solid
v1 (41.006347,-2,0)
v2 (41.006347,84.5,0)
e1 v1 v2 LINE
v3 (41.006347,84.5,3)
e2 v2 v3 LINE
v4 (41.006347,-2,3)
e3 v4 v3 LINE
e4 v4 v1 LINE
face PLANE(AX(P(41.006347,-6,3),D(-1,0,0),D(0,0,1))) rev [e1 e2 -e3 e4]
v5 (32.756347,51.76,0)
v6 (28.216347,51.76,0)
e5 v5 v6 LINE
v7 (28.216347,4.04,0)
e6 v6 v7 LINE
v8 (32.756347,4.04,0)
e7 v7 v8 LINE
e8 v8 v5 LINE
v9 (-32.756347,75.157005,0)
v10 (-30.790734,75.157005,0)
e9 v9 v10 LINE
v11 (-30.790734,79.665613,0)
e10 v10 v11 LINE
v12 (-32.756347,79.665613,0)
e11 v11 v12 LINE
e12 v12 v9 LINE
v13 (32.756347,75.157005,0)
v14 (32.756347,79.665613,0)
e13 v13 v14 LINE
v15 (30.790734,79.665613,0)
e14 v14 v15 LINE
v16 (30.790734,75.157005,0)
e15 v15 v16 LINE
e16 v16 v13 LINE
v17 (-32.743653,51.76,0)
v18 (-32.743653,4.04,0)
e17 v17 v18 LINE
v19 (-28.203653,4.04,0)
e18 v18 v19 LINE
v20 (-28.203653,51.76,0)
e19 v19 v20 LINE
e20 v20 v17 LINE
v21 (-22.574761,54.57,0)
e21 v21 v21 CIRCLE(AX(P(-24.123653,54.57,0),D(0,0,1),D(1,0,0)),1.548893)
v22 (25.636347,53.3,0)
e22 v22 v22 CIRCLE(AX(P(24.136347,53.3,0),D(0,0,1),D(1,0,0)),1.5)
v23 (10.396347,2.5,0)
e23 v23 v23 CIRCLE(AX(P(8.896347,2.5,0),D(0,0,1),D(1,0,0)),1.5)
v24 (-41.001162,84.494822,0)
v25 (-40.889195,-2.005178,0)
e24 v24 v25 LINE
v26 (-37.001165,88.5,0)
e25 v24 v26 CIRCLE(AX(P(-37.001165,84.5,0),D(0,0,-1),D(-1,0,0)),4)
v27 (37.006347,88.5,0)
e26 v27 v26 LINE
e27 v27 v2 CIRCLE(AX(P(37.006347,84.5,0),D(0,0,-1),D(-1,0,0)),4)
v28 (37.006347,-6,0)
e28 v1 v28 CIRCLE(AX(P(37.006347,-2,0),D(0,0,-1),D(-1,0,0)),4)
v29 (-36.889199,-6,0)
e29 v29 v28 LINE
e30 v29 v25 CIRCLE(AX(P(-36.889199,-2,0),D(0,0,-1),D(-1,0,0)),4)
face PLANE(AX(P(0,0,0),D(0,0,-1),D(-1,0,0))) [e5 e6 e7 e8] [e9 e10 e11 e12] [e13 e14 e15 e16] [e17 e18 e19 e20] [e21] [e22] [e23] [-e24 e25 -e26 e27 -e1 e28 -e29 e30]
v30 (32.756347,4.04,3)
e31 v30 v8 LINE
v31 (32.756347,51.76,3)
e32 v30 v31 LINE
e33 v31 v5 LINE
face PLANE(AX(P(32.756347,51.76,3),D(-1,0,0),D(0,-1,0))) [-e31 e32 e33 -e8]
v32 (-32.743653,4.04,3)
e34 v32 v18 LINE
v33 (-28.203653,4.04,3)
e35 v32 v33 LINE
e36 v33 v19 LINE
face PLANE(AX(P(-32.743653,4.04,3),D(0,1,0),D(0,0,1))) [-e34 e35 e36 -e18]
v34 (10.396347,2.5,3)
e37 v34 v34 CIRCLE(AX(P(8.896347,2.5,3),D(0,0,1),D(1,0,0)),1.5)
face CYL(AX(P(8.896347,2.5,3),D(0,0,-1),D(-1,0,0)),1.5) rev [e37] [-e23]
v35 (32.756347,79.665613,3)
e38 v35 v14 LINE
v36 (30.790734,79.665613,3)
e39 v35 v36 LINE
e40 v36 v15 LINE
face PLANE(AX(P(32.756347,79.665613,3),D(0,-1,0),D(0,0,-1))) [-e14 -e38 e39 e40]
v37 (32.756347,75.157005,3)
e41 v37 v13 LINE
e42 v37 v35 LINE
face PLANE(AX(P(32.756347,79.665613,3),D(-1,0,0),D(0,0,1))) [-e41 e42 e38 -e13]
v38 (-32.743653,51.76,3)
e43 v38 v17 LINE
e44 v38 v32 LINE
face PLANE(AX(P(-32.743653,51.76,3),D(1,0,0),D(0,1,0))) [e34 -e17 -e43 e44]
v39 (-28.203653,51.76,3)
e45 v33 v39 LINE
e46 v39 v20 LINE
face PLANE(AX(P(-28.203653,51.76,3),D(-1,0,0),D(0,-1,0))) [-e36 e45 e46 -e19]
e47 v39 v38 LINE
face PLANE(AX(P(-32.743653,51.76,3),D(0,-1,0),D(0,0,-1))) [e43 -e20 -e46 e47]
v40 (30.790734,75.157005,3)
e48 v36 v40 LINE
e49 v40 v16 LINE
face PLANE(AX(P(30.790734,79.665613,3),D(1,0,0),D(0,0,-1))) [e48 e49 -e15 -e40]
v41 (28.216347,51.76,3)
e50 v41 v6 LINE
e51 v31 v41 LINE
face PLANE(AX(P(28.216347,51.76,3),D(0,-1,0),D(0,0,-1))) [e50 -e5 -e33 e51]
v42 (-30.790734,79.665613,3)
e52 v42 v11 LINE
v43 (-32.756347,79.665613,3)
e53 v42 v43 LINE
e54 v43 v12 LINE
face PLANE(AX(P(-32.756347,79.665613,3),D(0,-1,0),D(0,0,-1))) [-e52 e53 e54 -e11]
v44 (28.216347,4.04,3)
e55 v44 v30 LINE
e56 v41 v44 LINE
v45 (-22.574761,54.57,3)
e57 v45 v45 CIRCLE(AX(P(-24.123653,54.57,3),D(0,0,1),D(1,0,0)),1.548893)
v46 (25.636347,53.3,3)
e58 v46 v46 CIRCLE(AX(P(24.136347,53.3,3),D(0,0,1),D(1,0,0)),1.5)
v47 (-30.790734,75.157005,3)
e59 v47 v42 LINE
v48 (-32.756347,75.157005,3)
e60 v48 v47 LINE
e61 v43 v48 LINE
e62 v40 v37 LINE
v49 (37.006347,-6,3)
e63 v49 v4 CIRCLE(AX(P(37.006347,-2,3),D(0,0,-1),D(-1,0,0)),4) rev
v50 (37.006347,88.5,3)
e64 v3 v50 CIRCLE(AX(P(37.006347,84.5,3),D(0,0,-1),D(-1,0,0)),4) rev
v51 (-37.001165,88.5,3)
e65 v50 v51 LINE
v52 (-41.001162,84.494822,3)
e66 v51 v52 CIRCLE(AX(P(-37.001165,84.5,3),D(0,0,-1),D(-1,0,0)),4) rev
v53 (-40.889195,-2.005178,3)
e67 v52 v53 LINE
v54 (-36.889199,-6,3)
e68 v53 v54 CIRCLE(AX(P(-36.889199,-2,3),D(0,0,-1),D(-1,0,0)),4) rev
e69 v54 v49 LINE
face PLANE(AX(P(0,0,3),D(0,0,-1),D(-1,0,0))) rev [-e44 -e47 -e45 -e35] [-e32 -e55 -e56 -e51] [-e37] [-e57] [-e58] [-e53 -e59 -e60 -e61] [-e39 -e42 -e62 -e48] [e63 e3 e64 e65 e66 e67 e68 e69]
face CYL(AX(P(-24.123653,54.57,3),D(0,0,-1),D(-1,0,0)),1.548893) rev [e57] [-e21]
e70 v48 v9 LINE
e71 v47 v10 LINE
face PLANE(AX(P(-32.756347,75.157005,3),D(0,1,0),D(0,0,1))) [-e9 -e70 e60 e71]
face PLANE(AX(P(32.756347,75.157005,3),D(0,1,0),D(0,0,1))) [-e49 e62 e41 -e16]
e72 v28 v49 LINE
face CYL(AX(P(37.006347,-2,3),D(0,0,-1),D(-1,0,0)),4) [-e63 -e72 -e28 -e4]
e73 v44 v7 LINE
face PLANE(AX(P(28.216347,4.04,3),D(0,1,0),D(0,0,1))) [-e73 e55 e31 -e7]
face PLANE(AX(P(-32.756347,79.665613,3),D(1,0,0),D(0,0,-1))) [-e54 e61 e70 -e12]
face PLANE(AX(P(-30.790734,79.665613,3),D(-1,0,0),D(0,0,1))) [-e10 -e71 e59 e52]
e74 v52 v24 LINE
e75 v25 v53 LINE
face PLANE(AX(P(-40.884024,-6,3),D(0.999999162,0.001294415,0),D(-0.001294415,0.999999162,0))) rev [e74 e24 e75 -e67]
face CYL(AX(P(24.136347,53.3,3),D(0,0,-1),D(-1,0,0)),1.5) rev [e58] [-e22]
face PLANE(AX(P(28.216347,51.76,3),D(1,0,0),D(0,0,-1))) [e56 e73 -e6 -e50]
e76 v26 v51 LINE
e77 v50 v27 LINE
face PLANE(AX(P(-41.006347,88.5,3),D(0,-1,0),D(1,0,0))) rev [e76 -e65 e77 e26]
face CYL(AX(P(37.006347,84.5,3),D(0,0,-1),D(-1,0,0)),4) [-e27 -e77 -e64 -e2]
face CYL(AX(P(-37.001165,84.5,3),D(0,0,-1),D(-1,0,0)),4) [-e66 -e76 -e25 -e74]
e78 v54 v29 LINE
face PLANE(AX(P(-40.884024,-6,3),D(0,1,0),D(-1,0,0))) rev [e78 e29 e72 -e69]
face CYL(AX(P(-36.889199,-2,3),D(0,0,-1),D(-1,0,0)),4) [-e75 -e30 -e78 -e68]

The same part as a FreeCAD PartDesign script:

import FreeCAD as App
import Part
import Sketcher


def edges_at(feature, points):
    """Names of the edges that pass closest to the given points."""
    edges = feature.Shape.Edges
    near = lambda p: min(range(len(edges)), key=lambda i: edges[i].distToShape(Part.Vertex(*p))[0])
    return sorted({f"Edge{near(p) + 1}" for p in points})


def add_polygon(sketch, points):
    """Adds a closed chain of lines whose ends are joined by coincident constraints."""
    first, n = sketch.GeometryCount, len(points)
    for a, b in zip(points, points[1:] + points[:1]):
        sketch.addGeometry(Part.LineSegment(App.Vector(*a, 0), App.Vector(*b, 0)), False)
    for i in range(n):
        sketch.addConstraint(Sketcher.Constraint("Coincident", first + i, 2, first + (i + 1) % n, 1))

doc = App.newDocument("Part")
body = doc.addObject("PartDesign::Body", "Body")

# Sketch on XY plane
sketch1 = doc.addObject("Sketcher::SketchObject", "Sketch")
body.addObject(sketch1)
sketch1.AttachmentSupport = (doc.XY_Plane, [""])
sketch1.MapMode = "FlatFace"
add_polygon(sketch1, [(41.006347, 88.5), (-41.006347, 88.5), (-40.884024, -6), (41.006347, -6)])  # lines 0-3
sketch1.addGeometry(Part.Circle(App.Vector(8.896347, 2.5, 0), App.Vector(0, 0, 1), 1.5), False)  # 4
add_polygon(sketch1, [(28.216347, 4.04), (28.216347, 51.76), (32.756347, 51.76), (32.756347, 4.04)])  # lines 5-8
add_polygon(sketch1, [(-32.743653, 4.04), (-32.743653, 51.76), (-28.203653, 51.76), (-28.203653, 4.04)])  # lines 9-12
sketch1.addGeometry(Part.Circle(App.Vector(24.136347, 53.3, 0), App.Vector(0, 0, 1), 1.5), False)  # 13
add_polygon(sketch1, [(30.790734, 75.157005), (30.790734, 79.665613), (32.756347, 79.665613), (32.756347, 75.157005)])  # lines 14-17
sketch1.addGeometry(Part.Circle(App.Vector(-24.123653, 54.57, 0), App.Vector(0, 0, 1), 1.548893), False)  # 18
add_polygon(sketch1, [(-32.756347, 75.157005), (-32.756347, 79.665613), (-30.790734, 79.665613), (-30.790734, 75.157005)])  # lines 19-22
sketch1.addConstraint([
    Sketcher.Constraint("Horizontal", 0),
    Sketcher.Constraint("Horizontal", 2),
    Sketcher.Constraint("Vertical", 3),
    Sketcher.Constraint("Vertical", 5),
    Sketcher.Constraint("Horizontal", 6),
    Sketcher.Constraint("Vertical", 7),
    Sketcher.Constraint("Horizontal", 8),
    Sketcher.Constraint("Vertical", 9),
    Sketcher.Constraint("Horizontal", 10),
    Sketcher.Constraint("Vertical", 11),
    Sketcher.Constraint("Horizontal", 12),
    Sketcher.Constraint("Vertical", 14),
    Sketcher.Constraint("Horizontal", 15),
    Sketcher.Constraint("Vertical", 16),
    Sketcher.Constraint("Horizontal", 17),
    Sketcher.Constraint("Vertical", 19),
    Sketcher.Constraint("Horizontal", 20),
    Sketcher.Constraint("Vertical", 21),
    Sketcher.Constraint("Horizontal", 22),
    Sketcher.Constraint("Equal", 4, 13),
    Sketcher.Constraint("Symmetric", 15, 2, 19, 2, -2),
    Sketcher.Constraint("Symmetric", 17, 2, 21, 2, -2),
    Sketcher.Constraint("Horizontal", 6, 2, 9, 2),
    Sketcher.Constraint("Horizontal", 8, 2, 11, 2),
    Sketcher.Constraint("Vertical", 7, 2, 15, 2),
    Sketcher.Constraint("Equal", 8, 10),
    Sketcher.Constraint("Diameter", 4, 3.0),
    Sketcher.Constraint("DistanceY", 3, 1, 3, 2, 94.5),
    Sketcher.Constraint("DistanceY", 1, 2, -1, 1, 6.0),
    Sketcher.Constraint("DistanceY", 4, 3, 0, 2, 86.0),
    Sketcher.Constraint("DistanceX", 6, 1, 6, 2, 4.54),
    Sketcher.Constraint("DistanceY", 5, 1, 5, 2, 47.72),
    Sketcher.Constraint("DistanceY", -1, 1, 13, 3, 53.3),
    Sketcher.Constraint("DistanceX", 11, 2, 4, 3, 37.1),
    Sketcher.Constraint("DistanceY", -1, 1, 18, 3, 54.57),
    Sketcher.Constraint("DistanceY", -1, 1, 5, 2, 51.76),
    Sketcher.Constraint("DistanceX", 4, 3, 13, 3, 15.24),
    Sketcher.Constraint("DistanceX", 18, 3, 13, 3, 48.26),
    Sketcher.Constraint("DistanceX", 4, 3, 2, 2, 32.11),
    Sketcher.Constraint("DistanceX", 13, 3, 5, 2, 4.08),
    Sketcher.Constraint("DistanceX", 0, 2, 19, 2, 8.25),
    Sketcher.Constraint("Diameter", 18, 3.097785),
    Sketcher.Constraint("DistanceX", 2, 1, 2, 2, 81.890371),
    Sketcher.Constraint("DistanceX", 0, 2, 0, 1, 82.012693),
    Sketcher.Constraint("DistanceX", 15, 1, 15, 2, 1.965613),
    Sketcher.Constraint("DistanceY", 14, 1, 14, 2, 4.508608),
    Sketcher.Constraint("DistanceY", -1, 1, 14, 2, 79.665613),
])
pad1 = doc.addObject("PartDesign::Pad", "Pad")
body.addObject(pad1)
pad1.Profile = sketch1
pad1.Length = 3
doc.recompute()

fillet = doc.addObject("PartDesign::Fillet", "Fillet")
body.addObject(fillet)
fillet.Base = (pad1, edges_at(pad1, [
    (-41.006, 88.5, 1.5),
    (41.006, 88.5, 1.5),
    (41.006, -6, 1.5),
    (-40.884, -6, 1.5),
]))
fillet.Radius = 4

doc.recompute()
